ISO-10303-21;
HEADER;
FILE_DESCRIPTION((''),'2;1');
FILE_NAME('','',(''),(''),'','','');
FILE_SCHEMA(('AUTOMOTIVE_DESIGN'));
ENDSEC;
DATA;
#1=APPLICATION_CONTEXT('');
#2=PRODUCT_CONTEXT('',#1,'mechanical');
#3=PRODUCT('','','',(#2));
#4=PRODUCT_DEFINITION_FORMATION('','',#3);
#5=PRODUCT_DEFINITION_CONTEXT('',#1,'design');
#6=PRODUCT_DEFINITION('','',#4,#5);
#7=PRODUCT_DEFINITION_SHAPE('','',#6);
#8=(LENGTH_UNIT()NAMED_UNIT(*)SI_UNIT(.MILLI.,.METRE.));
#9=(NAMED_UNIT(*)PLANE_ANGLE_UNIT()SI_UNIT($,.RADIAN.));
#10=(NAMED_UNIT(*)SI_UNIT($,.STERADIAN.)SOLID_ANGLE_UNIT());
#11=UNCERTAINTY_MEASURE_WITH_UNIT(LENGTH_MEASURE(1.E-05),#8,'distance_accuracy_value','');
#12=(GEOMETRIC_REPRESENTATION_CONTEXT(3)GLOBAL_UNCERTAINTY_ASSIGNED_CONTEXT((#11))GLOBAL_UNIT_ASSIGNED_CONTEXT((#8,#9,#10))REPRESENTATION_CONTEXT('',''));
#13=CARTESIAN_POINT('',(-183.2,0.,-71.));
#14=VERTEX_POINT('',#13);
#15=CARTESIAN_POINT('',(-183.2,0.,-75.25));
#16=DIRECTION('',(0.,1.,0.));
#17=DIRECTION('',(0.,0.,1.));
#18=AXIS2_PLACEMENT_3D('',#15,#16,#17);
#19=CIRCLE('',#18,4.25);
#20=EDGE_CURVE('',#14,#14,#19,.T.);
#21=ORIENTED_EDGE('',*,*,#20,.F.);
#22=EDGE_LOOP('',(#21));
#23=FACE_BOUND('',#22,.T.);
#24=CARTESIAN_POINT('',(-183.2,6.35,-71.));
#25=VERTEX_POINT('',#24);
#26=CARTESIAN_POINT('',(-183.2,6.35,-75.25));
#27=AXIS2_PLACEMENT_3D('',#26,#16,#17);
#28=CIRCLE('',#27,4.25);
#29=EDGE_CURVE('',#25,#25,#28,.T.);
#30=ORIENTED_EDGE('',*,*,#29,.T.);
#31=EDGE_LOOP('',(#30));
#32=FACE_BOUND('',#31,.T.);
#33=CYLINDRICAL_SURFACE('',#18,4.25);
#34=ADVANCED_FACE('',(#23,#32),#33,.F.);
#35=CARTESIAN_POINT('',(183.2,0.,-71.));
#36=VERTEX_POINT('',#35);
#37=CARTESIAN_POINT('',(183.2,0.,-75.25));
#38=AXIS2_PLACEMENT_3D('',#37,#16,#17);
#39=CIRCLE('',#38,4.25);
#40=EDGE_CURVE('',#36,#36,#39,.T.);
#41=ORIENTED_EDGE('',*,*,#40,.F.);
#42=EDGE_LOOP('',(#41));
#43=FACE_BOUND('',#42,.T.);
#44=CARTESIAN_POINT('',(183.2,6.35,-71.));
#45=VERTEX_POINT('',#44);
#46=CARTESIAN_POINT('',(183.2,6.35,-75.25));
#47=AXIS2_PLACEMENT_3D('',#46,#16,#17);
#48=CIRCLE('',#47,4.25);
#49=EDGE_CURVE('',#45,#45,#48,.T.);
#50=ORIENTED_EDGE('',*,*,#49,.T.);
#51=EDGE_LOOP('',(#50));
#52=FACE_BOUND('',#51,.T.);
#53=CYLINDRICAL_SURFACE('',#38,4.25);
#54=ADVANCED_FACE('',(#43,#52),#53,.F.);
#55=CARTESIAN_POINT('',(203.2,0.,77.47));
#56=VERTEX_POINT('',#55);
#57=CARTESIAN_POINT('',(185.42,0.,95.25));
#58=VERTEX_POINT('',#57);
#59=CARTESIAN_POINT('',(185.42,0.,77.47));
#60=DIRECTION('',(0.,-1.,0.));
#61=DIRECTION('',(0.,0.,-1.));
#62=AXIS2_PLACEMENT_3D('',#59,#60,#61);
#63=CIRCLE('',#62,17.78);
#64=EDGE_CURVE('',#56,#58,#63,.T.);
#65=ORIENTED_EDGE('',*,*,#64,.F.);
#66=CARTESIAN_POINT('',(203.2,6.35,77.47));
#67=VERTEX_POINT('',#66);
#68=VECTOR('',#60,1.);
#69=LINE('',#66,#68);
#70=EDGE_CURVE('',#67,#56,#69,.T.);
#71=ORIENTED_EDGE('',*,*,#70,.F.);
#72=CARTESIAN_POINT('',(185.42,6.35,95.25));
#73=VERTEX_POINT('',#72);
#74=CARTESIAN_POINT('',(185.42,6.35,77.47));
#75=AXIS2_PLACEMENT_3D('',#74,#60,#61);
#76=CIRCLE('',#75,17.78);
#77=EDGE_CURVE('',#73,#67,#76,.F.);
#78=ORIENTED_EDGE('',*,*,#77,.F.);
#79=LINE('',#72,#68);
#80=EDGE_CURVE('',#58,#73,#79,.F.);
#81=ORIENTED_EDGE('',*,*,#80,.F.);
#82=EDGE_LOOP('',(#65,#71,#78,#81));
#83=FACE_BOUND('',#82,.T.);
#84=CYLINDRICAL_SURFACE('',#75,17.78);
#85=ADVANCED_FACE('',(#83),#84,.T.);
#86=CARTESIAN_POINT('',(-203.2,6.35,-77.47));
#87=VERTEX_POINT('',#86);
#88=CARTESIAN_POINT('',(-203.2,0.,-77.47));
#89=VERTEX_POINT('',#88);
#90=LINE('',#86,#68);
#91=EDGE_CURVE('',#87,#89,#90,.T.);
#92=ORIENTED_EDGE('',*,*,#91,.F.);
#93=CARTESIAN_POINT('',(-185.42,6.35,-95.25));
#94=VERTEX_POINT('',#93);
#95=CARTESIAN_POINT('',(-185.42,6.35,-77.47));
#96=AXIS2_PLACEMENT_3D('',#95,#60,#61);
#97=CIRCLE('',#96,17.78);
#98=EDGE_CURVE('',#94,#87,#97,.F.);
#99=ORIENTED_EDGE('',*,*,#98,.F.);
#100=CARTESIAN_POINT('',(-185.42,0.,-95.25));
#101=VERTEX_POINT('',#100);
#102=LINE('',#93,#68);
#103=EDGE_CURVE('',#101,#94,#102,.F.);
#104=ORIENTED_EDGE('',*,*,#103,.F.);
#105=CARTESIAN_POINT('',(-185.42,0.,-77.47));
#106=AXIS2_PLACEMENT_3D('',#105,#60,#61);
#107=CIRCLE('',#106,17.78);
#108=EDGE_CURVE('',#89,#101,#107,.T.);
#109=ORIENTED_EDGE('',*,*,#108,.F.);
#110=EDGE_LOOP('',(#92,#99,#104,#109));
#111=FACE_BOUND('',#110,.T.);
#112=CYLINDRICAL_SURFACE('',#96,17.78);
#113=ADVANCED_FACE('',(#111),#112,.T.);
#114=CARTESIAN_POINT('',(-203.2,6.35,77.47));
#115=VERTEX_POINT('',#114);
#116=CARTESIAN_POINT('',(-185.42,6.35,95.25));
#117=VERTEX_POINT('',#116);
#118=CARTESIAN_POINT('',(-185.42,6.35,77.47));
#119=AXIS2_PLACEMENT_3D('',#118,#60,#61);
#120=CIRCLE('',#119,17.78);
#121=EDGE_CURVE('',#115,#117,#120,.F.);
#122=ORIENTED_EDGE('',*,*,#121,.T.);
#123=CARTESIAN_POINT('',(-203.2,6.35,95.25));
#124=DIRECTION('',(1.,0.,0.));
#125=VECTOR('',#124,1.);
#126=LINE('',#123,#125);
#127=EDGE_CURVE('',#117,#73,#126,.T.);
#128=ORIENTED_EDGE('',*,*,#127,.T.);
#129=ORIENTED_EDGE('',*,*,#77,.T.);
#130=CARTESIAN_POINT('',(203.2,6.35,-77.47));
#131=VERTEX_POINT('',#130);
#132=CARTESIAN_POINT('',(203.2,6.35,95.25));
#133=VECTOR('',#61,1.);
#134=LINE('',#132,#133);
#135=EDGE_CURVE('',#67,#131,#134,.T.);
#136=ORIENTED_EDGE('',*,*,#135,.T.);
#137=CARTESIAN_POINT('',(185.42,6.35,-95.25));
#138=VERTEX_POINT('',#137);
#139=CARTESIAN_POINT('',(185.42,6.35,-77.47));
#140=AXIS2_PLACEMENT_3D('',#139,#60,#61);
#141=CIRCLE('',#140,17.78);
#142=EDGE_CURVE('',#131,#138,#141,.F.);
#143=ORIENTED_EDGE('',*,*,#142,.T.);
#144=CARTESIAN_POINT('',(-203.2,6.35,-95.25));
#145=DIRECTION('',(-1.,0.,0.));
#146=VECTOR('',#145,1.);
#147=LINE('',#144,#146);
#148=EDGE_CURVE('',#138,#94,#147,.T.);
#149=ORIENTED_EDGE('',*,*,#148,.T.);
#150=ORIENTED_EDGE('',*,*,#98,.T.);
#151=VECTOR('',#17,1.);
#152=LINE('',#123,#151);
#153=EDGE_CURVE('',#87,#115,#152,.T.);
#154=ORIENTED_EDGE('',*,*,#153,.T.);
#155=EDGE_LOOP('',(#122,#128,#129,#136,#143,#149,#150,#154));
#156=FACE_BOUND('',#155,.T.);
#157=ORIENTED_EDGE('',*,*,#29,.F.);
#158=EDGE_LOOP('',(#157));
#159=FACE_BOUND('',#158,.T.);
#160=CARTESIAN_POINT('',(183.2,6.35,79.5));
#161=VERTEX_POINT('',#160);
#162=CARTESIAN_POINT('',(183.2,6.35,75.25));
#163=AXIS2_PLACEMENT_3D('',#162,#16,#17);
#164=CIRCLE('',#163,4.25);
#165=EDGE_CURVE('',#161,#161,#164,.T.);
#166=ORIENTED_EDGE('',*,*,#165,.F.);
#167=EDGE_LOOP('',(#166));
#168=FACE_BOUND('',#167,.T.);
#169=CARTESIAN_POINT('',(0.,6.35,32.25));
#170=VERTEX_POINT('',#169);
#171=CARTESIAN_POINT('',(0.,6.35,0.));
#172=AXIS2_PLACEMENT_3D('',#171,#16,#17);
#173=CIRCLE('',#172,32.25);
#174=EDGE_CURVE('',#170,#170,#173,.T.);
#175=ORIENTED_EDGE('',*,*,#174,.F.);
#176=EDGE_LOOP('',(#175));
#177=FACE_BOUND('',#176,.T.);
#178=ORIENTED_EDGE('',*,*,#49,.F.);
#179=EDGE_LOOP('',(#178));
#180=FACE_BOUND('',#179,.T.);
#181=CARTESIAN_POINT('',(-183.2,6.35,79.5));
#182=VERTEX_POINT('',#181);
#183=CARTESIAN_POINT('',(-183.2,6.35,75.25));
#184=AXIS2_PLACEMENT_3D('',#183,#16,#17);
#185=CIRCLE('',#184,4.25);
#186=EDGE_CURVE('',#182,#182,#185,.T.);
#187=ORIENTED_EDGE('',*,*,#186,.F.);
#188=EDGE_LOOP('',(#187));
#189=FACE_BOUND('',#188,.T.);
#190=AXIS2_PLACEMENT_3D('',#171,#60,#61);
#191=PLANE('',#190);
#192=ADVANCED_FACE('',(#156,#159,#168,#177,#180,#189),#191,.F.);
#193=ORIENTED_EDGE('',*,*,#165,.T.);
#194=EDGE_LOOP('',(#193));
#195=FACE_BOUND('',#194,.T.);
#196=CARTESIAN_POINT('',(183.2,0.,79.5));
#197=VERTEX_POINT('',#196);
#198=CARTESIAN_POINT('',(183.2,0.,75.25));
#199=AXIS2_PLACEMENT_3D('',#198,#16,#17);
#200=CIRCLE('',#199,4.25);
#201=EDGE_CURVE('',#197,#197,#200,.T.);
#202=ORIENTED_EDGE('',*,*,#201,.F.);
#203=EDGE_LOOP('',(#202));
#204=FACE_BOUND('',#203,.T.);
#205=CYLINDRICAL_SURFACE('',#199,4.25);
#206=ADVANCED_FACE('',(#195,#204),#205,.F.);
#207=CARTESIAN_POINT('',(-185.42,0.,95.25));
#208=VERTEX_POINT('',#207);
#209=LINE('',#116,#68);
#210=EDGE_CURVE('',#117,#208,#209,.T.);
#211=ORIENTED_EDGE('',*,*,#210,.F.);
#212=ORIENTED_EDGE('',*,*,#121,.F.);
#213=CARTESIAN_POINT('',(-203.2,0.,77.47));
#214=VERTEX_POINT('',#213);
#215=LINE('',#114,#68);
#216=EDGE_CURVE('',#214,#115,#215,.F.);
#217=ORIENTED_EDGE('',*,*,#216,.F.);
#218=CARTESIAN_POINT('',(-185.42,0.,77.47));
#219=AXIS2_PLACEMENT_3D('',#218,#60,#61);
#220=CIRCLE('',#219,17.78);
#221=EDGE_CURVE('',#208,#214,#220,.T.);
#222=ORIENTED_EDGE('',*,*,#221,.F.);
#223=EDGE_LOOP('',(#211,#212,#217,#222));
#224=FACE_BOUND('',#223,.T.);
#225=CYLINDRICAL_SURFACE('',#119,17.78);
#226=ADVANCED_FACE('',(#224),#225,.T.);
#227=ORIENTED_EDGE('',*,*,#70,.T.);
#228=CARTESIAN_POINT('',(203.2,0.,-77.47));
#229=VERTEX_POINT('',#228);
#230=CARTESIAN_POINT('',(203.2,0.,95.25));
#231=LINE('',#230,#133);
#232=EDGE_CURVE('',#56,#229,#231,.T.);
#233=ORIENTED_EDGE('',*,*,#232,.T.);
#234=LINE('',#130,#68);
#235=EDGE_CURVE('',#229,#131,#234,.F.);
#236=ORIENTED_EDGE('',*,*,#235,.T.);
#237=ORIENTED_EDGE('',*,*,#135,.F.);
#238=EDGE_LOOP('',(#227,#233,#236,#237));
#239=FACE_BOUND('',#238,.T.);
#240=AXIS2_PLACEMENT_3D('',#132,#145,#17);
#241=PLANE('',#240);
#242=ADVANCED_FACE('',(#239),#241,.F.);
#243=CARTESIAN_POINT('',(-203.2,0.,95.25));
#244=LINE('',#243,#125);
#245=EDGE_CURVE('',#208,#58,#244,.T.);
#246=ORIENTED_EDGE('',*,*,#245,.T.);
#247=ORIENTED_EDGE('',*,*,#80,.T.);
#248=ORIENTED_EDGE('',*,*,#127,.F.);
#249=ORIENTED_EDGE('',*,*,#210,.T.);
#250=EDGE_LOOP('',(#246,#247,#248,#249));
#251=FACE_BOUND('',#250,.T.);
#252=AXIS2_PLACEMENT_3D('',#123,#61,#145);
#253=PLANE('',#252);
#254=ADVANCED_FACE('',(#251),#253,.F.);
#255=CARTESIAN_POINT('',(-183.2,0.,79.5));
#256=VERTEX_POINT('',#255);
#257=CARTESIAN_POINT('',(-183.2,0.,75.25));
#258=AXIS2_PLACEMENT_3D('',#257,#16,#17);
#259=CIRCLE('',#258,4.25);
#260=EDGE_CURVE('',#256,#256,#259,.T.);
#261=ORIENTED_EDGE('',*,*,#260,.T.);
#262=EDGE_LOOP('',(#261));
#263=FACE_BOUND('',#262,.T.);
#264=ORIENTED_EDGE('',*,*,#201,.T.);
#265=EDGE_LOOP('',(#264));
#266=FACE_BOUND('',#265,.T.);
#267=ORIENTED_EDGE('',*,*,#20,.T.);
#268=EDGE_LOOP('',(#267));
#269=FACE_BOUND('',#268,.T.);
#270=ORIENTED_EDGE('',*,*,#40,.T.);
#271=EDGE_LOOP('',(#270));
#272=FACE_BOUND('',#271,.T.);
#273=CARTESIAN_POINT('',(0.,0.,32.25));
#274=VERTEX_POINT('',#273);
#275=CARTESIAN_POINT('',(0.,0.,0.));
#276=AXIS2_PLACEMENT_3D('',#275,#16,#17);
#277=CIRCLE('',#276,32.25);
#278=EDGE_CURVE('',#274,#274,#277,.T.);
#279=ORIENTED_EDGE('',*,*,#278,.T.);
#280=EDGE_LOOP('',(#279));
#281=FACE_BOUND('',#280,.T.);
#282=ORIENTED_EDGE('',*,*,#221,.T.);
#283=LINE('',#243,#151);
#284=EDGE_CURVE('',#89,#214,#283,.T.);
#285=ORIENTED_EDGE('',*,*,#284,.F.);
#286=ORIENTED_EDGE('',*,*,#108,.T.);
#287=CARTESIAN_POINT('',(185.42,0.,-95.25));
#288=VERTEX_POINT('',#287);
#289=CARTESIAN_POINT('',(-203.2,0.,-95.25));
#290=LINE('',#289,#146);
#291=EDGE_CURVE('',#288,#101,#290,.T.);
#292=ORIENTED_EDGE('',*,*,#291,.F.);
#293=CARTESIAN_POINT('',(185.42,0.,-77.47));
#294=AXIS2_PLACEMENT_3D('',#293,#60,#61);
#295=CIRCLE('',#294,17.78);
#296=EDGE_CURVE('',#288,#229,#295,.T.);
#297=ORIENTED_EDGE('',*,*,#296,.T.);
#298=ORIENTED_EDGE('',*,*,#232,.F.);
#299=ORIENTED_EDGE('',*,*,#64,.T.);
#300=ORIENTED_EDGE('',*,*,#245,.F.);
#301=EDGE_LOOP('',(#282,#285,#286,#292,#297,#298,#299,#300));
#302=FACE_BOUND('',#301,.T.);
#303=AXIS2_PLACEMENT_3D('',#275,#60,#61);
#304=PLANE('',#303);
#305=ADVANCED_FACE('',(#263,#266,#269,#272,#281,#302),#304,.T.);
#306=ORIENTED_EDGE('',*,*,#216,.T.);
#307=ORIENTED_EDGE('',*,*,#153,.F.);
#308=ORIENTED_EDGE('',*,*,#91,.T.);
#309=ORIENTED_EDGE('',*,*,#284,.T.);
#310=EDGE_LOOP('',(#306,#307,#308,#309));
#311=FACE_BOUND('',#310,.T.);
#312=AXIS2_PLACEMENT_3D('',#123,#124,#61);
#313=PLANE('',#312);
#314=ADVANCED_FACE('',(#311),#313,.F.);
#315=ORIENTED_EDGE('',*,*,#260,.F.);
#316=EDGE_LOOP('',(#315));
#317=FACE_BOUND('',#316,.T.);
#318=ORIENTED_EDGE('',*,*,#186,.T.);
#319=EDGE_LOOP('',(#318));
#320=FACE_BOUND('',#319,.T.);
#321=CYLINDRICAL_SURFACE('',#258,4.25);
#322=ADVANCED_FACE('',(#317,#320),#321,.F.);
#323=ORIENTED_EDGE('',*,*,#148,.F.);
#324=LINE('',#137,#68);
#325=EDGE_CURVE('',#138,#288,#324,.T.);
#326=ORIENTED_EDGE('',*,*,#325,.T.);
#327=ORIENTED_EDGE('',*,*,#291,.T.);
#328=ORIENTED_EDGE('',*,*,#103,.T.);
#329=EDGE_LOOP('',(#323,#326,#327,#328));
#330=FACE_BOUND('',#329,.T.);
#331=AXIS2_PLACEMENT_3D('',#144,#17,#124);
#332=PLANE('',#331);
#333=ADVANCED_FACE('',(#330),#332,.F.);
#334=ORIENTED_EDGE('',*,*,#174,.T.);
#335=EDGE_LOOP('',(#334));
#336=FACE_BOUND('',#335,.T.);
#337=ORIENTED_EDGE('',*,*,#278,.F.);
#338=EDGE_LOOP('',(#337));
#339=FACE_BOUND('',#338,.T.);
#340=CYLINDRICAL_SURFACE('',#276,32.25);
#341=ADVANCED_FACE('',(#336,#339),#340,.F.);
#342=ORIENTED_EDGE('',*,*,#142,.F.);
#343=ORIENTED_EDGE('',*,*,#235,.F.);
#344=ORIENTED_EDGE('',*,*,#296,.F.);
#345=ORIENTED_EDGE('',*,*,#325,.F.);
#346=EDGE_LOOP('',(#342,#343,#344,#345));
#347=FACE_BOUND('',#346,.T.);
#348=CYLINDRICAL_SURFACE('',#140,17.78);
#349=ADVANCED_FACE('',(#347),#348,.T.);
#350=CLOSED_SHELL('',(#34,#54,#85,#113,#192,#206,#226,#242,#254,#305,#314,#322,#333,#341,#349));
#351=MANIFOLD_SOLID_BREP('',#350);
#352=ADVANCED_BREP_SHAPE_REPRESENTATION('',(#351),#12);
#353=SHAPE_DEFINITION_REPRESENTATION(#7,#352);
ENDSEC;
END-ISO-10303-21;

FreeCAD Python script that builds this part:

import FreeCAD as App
import Part
import Sketcher

V = App.Vector
Q = App.Units.Quantity


def edges_at(feature, points):
    """Names of the edges that pass closest to the given points."""
    edges = feature.Shape.Edges
    near = lambda p: min(range(len(edges)), key=lambda i: edges[i].distToShape(Part.Vertex(*p))[0])
    return sorted({f"Edge{near(p) + 1}" for p in points})


def add_polygon(sketch, points):
    """Adds a closed chain of lines whose ends are joined by coincident constraints."""
    first, n = sketch.GeometryCount, len(points)
    for a, b in zip(points, points[1:] + points[:1]):
        sketch.addGeometry(Part.LineSegment(App.Vector(*a, 0), App.Vector(*b, 0)), False)
    for i in range(n):
        sketch.addConstraint(Sketcher.Constraint("Coincident", first + i, 2, first + (i + 1) % n, 1))

doc = App.newDocument("Part")
body = doc.addObject("PartDesign::Body", "Body")

# Sketch on XZ plane
sketch1 = body.newObject("Sketcher::SketchObject", "Sketch")
sketch1.AttachmentSupport = (doc.getObject("XZ_Plane"), [""])
sketch1.MapMode = "FlatFace"
add_polygon(sketch1, [(-203.2, -95.25), (-203.2, 95.25), (203.2, 95.25), (203.2, -95.25)])  # lines 0-3
sketch1.addConstraint([
    Sketcher.Constraint("Vertical", 0),
    Sketcher.Constraint("Horizontal", 1),
    Sketcher.Constraint("Vertical", 2),
    Sketcher.Constraint("Horizontal", 3),
    Sketcher.Constraint("Symmetric", 0, 2, 2, 2, -1, 1),
    Sketcher.Constraint("DistanceX", 1, 1, 1, 2, Q("16 in")),
    Sketcher.Constraint("DistanceY", 0, 1, 0, 2, Q("7.5 in")),
])
pad1 = body.newObject("PartDesign::Pad", "Pad")
pad1.Profile = sketch1
pad1.Length = Q("0.25 in")
pad1.Reversed = True

# Sketch on XZ plane
sketch2 = body.newObject("Sketcher::SketchObject", "Sketch001")
sketch2.AttachmentSupport = (doc.getObject("XZ_Plane"), [""])
sketch2.MapMode = "FlatFace"
sketch2.AttachmentOffset = App.Placement(V(0, 0, -0.25 * 25.4), App.Rotation())
sketch2.addGeometry(Part.Circle(V(0, 0, 0), V(0, 0, 1), 32.25), False)
sketch2.addConstraint([
    Sketcher.Constraint("Coincident", 0, 3, -1, 1),
    Sketcher.Constraint("Diameter", 0, Q("64.5 mm")),
])
pocket1 = body.newObject("PartDesign::Pocket", "Pocket")
pocket1.Profile = sketch2
pocket1.Type = "ThroughAll"
pocket1.Reversed = True

# Sketch on XZ plane
sketch3 = body.newObject("Sketcher::SketchObject", "Sketch002")
sketch3.AttachmentSupport = (doc.getObject("XZ_Plane"), [""])
sketch3.MapMode = "FlatFace"
sketch3.AttachmentOffset = App.Placement(V(0, 0, -0.25 * 25.4), App.Rotation())
sketch3.addGeometry([
    Part.Circle(V(-183.2, -75.25, 0), V(0, 0, 1), 4.25),
    Part.Circle(V(183.2, -75.25, 0), V(0, 0, 1), 4.25),
    Part.Circle(V(183.2, 75.25, 0), V(0, 0, 1), 4.25),
    Part.Circle(V(-183.2, 75.25, 0), V(0, 0, 1), 4.25),
], False)
sketch3.addConstraint([
    Sketcher.Constraint("Equal", 0, 1),
    Sketcher.Constraint("Equal", 1, 2),
    Sketcher.Constraint("Equal", 2, 3),
    Sketcher.Constraint("Symmetric", 0, 3, 2, 3, -1, 1),
    Sketcher.Constraint("Symmetric", 1, 3, 3, 3, -1, 1),
    Sketcher.Constraint("Symmetric", 0, 3, 1, 3, -2),
    Sketcher.Constraint("Diameter", 0, Q("8.5 mm")),
    Sketcher.Constraint("DistanceX", 0, 3, -1, 1, Q("183.2 mm")),
    Sketcher.Constraint("DistanceY", 0, 3, -1, 1, Q("75.25 mm")),
])
pocket2 = body.newObject("PartDesign::Pocket", "Pocket001")
pocket2.Profile = sketch3
pocket2.Type = "ThroughAll"
pocket2.Reversed = True
doc.recompute()

fillet = body.newObject("PartDesign::Fillet", "Fillet")
fillet.Base = (pocket2, edges_at(pocket2, [
    (203.2, 3.175, 95.25),
    (-203.2, 3.175, 95.25),
    (-203.2, 3.175, -95.25),
    (203.2, 3.175, -95.25),
]))
fillet.Radius = Q("0.7 in")

doc.recompute()
